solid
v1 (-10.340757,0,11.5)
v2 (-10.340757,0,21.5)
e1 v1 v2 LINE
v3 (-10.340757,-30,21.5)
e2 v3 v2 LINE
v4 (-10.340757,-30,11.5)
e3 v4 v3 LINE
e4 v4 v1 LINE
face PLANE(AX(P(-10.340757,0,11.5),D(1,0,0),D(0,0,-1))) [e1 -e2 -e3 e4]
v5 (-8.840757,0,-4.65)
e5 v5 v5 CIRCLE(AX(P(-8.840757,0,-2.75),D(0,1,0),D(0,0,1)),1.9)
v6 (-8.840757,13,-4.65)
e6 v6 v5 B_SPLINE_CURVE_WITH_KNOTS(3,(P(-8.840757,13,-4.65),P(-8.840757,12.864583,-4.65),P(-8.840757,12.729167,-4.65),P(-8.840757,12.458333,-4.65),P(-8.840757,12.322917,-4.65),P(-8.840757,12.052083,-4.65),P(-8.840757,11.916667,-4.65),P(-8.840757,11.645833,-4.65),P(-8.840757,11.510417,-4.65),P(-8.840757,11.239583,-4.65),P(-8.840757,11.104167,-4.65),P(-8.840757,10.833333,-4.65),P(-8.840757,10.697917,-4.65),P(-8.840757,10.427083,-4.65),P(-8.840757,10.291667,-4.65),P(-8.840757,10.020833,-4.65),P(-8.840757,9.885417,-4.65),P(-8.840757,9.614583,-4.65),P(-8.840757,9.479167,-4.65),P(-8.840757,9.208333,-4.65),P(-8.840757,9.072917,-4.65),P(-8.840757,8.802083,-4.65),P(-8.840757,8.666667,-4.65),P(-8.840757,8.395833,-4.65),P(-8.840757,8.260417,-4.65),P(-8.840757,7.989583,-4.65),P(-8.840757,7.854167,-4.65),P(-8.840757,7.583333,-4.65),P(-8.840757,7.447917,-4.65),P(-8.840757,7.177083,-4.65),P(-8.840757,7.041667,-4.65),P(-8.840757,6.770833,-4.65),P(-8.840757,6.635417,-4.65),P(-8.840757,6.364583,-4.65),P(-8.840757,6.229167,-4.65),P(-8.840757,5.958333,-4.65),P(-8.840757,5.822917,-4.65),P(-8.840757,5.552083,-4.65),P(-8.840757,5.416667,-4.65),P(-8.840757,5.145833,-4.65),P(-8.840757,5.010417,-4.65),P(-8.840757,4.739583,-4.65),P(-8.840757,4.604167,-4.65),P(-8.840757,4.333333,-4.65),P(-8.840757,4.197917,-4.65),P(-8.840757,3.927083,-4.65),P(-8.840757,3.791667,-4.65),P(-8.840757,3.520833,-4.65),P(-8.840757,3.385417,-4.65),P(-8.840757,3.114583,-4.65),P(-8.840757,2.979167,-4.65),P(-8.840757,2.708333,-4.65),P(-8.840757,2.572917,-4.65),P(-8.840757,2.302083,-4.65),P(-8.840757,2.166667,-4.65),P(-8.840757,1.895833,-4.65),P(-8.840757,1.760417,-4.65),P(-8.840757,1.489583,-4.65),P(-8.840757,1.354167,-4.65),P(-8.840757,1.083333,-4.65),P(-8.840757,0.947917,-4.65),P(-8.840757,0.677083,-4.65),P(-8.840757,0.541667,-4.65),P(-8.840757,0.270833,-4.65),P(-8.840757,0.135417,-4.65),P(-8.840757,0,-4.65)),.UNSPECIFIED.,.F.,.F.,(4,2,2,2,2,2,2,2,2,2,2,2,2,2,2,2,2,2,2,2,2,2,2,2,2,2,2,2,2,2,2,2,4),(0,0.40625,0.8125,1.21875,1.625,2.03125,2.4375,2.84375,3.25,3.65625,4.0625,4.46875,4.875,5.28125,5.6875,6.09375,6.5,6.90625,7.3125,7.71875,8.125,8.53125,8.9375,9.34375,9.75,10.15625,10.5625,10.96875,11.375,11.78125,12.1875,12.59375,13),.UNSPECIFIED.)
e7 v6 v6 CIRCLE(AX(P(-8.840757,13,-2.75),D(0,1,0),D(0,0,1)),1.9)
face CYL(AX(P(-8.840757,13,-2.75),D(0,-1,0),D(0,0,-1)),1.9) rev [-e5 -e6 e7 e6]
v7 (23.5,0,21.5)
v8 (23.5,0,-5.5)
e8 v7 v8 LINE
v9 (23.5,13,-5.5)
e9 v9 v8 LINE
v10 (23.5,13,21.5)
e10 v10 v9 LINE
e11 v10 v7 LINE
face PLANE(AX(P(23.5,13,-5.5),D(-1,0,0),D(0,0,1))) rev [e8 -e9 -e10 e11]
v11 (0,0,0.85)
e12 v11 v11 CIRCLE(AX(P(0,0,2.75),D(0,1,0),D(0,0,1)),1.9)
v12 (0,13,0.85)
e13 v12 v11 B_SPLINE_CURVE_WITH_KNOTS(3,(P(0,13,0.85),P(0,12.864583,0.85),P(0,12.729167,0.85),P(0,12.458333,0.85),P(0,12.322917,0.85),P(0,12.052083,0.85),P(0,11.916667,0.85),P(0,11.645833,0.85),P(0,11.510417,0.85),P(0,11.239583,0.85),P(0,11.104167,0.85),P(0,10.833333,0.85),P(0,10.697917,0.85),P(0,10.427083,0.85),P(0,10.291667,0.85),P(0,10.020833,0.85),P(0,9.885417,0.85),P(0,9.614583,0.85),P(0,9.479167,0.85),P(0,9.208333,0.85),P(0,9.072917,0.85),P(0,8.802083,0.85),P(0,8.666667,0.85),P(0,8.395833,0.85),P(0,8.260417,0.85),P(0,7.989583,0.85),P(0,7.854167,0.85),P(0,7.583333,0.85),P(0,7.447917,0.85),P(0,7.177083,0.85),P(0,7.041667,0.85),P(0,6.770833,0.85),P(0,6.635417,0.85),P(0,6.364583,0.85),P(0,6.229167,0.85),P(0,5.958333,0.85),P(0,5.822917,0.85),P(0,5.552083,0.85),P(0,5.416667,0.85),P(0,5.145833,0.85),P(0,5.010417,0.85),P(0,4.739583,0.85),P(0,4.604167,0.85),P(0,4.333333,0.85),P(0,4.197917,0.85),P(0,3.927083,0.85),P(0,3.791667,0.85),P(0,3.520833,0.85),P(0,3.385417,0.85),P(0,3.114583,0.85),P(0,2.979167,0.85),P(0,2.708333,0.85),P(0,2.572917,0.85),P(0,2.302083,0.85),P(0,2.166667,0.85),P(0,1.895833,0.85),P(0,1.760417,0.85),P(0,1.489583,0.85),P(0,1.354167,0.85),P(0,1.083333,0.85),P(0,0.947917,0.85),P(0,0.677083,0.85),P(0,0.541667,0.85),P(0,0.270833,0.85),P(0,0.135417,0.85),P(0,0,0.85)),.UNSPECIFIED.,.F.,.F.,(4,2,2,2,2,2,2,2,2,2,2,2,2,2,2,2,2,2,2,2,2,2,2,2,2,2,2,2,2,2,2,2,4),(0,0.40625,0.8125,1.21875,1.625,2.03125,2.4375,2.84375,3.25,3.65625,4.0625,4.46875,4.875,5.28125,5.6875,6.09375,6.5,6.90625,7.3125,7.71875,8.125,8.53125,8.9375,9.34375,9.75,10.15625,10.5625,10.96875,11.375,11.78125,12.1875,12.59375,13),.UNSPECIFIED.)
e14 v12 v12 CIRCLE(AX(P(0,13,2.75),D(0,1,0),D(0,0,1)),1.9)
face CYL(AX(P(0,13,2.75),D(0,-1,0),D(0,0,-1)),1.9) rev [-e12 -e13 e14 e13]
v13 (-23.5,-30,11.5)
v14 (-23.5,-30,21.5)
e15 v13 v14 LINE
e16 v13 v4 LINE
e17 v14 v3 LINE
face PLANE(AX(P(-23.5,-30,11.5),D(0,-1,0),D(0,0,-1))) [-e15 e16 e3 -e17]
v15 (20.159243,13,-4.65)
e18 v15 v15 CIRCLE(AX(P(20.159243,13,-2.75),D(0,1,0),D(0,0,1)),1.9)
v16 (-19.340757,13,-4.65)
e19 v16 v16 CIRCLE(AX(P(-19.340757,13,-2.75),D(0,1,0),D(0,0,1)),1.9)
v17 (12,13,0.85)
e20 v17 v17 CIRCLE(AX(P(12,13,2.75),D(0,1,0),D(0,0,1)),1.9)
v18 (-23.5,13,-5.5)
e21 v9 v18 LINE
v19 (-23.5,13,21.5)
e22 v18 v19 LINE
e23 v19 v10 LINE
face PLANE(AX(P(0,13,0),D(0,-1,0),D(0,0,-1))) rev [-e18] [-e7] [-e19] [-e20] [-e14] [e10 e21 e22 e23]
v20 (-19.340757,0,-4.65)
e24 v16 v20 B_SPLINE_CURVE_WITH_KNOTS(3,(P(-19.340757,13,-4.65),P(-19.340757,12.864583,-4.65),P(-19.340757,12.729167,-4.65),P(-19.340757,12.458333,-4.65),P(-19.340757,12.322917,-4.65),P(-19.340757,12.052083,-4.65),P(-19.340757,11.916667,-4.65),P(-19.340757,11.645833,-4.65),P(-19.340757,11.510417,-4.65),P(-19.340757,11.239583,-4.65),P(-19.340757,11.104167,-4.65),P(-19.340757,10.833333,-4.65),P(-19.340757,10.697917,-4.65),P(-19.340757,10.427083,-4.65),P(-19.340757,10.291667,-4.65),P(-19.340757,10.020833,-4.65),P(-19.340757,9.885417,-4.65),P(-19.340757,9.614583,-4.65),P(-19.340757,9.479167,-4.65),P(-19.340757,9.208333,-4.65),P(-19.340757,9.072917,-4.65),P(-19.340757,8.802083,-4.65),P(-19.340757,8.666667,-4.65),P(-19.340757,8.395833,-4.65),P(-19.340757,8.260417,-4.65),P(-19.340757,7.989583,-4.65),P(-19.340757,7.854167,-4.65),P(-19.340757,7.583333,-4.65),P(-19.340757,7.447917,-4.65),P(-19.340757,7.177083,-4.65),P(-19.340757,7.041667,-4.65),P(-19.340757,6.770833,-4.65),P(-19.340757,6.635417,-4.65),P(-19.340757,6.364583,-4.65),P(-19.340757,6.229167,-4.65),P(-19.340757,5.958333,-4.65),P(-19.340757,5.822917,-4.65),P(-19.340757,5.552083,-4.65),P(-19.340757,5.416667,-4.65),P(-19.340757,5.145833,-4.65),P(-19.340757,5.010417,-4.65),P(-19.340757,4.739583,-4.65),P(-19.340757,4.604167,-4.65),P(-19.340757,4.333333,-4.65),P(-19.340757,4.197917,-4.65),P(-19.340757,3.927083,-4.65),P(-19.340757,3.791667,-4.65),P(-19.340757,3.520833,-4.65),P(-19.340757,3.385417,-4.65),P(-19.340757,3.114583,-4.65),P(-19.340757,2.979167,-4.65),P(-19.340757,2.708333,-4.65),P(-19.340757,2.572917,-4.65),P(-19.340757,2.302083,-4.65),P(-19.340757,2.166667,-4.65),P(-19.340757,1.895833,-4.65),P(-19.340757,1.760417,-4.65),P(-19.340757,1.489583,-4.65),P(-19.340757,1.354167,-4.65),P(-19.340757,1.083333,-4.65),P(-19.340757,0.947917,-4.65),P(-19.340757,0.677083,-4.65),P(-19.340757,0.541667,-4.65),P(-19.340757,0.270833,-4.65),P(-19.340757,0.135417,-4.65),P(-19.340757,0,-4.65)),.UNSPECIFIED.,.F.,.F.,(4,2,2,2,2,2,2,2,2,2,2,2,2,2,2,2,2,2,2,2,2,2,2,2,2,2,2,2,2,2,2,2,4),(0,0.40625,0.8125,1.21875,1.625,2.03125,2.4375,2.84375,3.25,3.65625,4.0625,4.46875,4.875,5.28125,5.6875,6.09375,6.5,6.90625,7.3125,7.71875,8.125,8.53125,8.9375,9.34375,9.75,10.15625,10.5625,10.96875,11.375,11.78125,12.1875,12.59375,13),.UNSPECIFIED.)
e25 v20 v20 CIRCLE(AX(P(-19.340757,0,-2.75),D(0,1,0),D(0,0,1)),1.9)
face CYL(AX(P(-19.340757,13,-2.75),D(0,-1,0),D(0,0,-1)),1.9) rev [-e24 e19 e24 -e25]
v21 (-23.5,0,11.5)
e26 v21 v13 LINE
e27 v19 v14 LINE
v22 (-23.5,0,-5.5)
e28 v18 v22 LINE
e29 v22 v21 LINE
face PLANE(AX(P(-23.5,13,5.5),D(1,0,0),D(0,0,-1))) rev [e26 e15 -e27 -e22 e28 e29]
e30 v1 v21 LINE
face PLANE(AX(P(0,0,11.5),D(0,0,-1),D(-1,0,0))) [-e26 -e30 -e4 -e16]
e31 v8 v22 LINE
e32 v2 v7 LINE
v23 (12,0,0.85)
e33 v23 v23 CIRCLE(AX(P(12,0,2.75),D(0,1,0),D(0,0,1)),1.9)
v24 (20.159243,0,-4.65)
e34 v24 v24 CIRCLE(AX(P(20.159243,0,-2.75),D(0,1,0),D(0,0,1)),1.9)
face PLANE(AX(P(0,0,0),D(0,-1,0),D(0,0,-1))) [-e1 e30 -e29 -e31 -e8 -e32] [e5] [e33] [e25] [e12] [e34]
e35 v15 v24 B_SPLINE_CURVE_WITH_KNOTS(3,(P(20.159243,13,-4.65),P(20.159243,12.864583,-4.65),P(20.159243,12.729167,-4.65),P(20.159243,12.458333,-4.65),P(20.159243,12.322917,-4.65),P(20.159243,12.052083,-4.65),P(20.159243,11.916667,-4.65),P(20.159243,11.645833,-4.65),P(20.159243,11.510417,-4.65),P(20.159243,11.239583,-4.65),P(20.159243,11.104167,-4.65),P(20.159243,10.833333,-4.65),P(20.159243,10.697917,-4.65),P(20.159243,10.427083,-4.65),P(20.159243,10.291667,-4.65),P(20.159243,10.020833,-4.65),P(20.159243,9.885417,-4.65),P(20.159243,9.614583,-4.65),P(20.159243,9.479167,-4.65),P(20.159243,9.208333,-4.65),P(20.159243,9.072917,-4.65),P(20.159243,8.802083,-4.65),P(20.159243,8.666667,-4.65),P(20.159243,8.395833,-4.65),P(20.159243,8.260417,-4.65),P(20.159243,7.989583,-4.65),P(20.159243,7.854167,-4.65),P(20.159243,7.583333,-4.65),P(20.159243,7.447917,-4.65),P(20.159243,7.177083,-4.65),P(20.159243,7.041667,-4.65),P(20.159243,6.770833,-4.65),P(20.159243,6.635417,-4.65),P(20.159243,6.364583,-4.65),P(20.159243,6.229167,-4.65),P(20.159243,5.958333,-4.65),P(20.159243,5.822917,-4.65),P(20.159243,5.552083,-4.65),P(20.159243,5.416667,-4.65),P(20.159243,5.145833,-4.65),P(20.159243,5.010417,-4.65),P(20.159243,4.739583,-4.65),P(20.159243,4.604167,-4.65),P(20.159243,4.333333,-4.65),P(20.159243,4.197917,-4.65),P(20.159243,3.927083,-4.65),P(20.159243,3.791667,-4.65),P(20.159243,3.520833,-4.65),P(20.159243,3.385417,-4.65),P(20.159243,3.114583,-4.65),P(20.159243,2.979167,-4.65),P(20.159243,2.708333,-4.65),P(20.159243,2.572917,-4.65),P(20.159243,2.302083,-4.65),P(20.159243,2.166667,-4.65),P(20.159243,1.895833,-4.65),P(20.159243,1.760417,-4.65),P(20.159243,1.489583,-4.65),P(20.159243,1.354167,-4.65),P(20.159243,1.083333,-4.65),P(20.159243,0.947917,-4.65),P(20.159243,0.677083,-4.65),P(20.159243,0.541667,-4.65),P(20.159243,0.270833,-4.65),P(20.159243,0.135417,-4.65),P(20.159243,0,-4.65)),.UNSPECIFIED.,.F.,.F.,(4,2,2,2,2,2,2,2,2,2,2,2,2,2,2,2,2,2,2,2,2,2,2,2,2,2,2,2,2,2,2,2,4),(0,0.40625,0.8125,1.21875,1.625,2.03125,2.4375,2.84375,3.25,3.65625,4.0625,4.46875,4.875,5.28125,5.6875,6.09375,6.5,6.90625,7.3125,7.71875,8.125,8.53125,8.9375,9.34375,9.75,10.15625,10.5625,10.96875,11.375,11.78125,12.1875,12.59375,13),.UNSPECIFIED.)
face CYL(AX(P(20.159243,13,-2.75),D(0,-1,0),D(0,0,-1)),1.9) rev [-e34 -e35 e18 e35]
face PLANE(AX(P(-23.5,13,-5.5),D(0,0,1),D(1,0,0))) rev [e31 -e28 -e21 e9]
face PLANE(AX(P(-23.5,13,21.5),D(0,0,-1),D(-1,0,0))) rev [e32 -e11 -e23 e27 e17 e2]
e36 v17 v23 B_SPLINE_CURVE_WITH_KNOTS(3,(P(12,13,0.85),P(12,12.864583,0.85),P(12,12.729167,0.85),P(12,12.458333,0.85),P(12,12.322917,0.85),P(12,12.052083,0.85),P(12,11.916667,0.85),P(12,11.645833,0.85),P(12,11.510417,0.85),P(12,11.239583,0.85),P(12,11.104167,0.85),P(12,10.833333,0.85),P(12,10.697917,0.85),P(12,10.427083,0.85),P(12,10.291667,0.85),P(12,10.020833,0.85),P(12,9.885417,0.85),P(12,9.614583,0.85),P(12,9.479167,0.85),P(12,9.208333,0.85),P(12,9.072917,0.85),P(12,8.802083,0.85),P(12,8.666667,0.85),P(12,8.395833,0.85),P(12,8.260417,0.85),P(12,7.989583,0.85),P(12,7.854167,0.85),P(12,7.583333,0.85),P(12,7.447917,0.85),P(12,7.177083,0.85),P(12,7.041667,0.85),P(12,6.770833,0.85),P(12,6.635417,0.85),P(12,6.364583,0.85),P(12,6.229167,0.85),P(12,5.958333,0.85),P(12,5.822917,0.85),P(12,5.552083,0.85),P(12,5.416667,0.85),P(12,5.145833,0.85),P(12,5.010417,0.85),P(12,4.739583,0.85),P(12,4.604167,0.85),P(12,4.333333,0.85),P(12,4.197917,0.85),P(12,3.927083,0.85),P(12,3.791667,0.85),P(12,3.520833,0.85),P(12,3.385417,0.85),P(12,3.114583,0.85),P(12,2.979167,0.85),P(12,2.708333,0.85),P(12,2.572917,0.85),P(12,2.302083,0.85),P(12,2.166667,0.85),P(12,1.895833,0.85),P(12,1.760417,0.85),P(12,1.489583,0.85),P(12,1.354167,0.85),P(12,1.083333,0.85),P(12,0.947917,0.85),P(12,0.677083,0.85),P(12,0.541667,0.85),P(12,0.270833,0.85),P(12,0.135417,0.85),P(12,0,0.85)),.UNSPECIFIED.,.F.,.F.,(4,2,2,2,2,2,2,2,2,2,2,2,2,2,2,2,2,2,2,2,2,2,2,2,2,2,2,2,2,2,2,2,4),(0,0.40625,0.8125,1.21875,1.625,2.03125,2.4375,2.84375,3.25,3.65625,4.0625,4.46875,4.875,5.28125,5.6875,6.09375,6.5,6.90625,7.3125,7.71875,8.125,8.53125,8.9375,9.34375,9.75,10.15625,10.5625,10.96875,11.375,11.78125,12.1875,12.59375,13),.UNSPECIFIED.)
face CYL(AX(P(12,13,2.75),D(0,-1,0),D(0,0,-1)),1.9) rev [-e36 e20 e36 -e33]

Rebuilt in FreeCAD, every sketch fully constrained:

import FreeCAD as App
import Part
import Sketcher

V = App.Vector
Q = App.Units.Quantity


def add_polygon(sketch, points):
    """Adds a closed chain of lines whose ends are joined by coincident constraints."""
    first, n = sketch.GeometryCount, len(points)
    for a, b in zip(points, points[1:] + points[:1]):
        sketch.addGeometry(Part.LineSegment(App.Vector(*a, 0), App.Vector(*b, 0)), False)
    for i in range(n):
        sketch.addConstraint(Sketcher.Constraint("Coincident", first + i, 2, first + (i + 1) % n, 1))

doc = App.newDocument("Part")
body = doc.addObject("PartDesign::Body", "Body")

sketch1 = body.newObject("Sketcher::SketchObject", "Sketch")
sketch1.AttachmentSupport = (doc.getObject("XZ_Plane"), [""])
sketch1.MapMode = "FlatFace"
add_polygon(sketch1, [(-23.5, 21.5), (23.5, 21.5), (23.5, -5.5), (-23.5, -5.5)])
sketch1.addGeometry(Part.Circle(V(0, 2.8, 0), V(0, 0, 1), 1.9), False)
sketch1.addGeometry(Part.Circle(V(12, 2.8, 0), V(0, 0, 1), 1.9), False)
sketch1.addGeometry(Part.Circle(V(-19.3, -2.8, 0), V(0, 0, 1), 1.9), False)
sketch1.addGeometry(Part.Circle(V(-8.8, -2.8, 0), V(0, 0, 1), 1.9), False)
sketch1.addGeometry(Part.Circle(V(20.2, -2.8, 0), V(0, 0, 1), 1.9), False)
sketch1.addConstraint([
    Sketcher.Constraint("Horizontal", 0),
    Sketcher.Constraint("Vertical", 1),
    Sketcher.Constraint("Horizontal", 2),
    Sketcher.Constraint("Vertical", 3),
    Sketcher.Constraint("Equal", 4, 5),
    Sketcher.Constraint("Equal", 5, 6),
    Sketcher.Constraint("Equal", 6, 7),
    Sketcher.Constraint("Equal", 7, 8),
    Sketcher.Constraint("PointOnObject", 4, 3, -2),
    Sketcher.Constraint("Horizontal", 4, 3, 5, 3),
    Sketcher.Constraint("Horizontal", 6, 3, 7, 3),
    Sketcher.Constraint("Horizontal", 7, 3, 8, 3),
    Sketcher.Constraint("Diameter", 4, Q("3.8 mm")),
    Sketcher.Constraint("DistanceX", 0, 1, 0, 2, Q("47 mm")),
    Sketcher.Constraint("DistanceY", 1, 2, 1, 1, Q("27 mm")),
    Sketcher.Constraint("DistanceX", -1, 1, 5, 3, Q("12 mm")),
    Sketcher.Constraint("DistanceX", 7, 3, 8, 3, Q("29 mm")),
    Sketcher.Constraint("DistanceX", -1, 1, 0, 2, Q("23.5 mm")),
    Sketcher.Constraint("DistanceY", -1, 1, 0, 2, Q("21.5 mm")),
    Sketcher.Constraint("DistanceY", 6, 3, 4, 3, Q("5.5 mm")),
    Sketcher.Constraint("DistanceX", 6, 3, 7, 3, Q("10.5 mm")),
    Sketcher.Constraint("DistanceY", -1, 1, 4, 3, Q("2.75 mm")),
    Sketcher.Constraint("DistanceX", 6, 3, -1, 1, Q("19.340757 mm")),
])
pad1 = body.newObject("PartDesign::Pad", "Pad")
pad1.Profile = sketch1
pad1.Length = 13
pad1.Reversed = True

sketch2 = body.newObject("Sketcher::SketchObject", "Sketch001")
sketch2.AttachmentSupport = (doc.getObject("XY_Plane"), [""])
sketch2.MapMode = "FlatFace"
sketch2.AttachmentOffset = App.Placement(V(0, 0, 21.5), App.Rotation())
add_polygon(sketch2, [(-24, 0), (-24, -30), (-10, -30), (-10, 0)])
sketch2.addConstraint([
    Sketcher.Constraint("Vertical", 0),
    Sketcher.Constraint("Horizontal", 1),
    Sketcher.Constraint("Vertical", 2),
    Sketcher.Constraint("Horizontal", 3),
    Sketcher.Constraint("PointOnObject", 2, 2, -1),
    Sketcher.Constraint("DistanceY", 0, 2, 0, 1, Q("30 mm")),
    Sketcher.Constraint("DistanceX", 0, 2, -1, 1, Q("23.5 mm")),
    Sketcher.Constraint("DistanceX", 1, 1, 1, 2, Q("13.159243 mm")),
])
pad2 = body.newObject("PartDesign::Pad", "Pad001")
pad2.Profile = sketch2
pad2.Length = 10
pad2.Reversed = True

doc.recompute()
